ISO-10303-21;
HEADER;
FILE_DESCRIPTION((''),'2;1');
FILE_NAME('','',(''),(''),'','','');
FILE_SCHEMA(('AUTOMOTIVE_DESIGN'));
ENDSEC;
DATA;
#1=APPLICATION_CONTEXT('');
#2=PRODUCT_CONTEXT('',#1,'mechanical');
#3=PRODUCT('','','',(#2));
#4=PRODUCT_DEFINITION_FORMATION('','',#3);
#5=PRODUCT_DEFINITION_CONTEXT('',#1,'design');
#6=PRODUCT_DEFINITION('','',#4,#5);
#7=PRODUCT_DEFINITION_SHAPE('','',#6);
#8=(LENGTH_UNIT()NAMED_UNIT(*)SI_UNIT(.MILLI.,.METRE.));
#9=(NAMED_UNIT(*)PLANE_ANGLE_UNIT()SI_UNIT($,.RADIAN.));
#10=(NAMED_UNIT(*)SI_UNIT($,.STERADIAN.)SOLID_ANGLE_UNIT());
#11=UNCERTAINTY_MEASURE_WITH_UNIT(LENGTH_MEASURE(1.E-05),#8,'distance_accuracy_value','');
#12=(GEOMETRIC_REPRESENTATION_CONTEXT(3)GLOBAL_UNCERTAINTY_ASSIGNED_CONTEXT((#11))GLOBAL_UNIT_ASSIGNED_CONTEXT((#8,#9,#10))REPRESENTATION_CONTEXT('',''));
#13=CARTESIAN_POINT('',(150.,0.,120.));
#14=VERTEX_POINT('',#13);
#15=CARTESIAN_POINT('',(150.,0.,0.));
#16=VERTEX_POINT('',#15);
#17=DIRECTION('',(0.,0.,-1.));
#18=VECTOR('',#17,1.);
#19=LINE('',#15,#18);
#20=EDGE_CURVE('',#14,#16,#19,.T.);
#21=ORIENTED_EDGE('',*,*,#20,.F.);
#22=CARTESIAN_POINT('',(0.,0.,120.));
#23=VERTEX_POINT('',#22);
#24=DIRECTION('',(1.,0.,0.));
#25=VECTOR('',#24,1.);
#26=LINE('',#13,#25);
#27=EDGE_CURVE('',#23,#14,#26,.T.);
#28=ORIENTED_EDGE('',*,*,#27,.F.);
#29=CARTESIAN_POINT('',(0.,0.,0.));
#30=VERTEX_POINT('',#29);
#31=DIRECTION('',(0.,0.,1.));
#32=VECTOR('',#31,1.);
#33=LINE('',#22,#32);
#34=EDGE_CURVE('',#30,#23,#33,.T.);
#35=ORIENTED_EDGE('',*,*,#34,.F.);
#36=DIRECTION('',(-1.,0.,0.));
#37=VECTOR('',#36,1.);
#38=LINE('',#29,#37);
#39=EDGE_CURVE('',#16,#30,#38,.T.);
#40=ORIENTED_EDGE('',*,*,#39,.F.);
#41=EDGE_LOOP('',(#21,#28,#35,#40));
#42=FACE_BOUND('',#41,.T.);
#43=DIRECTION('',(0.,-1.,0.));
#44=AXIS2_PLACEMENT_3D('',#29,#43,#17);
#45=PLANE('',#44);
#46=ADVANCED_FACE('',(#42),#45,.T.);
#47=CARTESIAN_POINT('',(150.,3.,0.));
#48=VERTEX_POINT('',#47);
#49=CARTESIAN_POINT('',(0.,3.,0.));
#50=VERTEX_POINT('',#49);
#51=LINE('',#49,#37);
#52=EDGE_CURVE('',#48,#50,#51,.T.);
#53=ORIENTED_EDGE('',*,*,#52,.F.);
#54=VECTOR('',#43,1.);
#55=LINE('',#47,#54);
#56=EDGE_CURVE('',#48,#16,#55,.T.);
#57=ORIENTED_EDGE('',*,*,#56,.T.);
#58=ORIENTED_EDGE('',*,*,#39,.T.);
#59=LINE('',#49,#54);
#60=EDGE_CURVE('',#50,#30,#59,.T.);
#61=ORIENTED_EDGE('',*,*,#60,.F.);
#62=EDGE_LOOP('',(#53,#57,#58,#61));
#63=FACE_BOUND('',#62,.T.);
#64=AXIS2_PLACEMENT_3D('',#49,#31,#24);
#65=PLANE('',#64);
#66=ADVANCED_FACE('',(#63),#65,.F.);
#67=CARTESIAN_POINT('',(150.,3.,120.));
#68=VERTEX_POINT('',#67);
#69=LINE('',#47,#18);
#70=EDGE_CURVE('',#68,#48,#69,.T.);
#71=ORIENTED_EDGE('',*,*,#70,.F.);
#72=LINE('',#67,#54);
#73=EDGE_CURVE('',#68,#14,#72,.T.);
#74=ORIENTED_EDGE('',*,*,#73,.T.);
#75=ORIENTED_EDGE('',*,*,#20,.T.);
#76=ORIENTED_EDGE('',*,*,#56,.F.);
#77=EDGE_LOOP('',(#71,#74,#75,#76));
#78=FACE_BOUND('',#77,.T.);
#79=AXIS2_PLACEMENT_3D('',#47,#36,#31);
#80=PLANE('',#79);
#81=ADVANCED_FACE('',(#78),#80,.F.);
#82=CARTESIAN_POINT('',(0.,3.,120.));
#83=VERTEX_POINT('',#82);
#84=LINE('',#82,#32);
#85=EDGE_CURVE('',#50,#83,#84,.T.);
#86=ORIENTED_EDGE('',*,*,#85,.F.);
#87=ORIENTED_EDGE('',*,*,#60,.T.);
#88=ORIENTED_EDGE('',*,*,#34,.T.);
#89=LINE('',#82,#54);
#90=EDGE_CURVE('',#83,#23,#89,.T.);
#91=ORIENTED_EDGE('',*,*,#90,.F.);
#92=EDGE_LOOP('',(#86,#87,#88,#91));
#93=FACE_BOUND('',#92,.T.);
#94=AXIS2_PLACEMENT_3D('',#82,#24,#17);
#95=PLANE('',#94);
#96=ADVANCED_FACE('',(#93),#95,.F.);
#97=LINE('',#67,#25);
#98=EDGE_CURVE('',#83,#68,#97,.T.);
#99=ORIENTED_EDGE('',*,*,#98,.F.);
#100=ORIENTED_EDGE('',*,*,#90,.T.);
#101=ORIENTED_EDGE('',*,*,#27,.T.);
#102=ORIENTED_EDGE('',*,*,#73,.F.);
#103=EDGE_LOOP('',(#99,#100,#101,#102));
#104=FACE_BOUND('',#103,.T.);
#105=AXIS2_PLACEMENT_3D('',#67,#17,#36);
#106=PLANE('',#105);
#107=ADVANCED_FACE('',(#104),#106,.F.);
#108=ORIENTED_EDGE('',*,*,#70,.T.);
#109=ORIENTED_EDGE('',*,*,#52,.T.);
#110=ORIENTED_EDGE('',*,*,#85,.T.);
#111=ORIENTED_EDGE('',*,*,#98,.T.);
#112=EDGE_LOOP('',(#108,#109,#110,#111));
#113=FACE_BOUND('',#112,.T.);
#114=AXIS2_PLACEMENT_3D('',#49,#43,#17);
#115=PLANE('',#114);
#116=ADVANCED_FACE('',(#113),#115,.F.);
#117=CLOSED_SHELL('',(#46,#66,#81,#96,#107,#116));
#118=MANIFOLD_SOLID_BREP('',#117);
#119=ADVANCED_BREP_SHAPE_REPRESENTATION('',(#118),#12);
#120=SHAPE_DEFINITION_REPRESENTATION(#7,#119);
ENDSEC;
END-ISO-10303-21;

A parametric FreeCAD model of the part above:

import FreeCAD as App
import Part
import Sketcher
Q = App.Units.Quantity


def add_polygon(sketch, points):
    """Adds a closed chain of lines whose ends are joined by coincident constraints."""
    first, n = sketch.GeometryCount, len(points)
    for a, b in zip(points, points[1:] + points[:1]):
        sketch.addGeometry(Part.LineSegment(App.Vector(*a, 0), App.Vector(*b, 0)), False)
    for i in range(n):
        sketch.addConstraint(Sketcher.Constraint("Coincident", first + i, 2, first + (i + 1) % n, 1))

doc = App.newDocument("Part")
body = doc.addObject("PartDesign::Body", "Body")

sketch1 = body.newObject("Sketcher::SketchObject", "Sketch")
sketch1.AttachmentSupport = (doc.getObject("XZ_Plane"), [""])
sketch1.MapMode = "FlatFace"
add_polygon(sketch1, [(0, 0), (0, 120), (150, 120), (150, 0)])
sketch1.addConstraint([
    Sketcher.Constraint("Vertical", 0),
    Sketcher.Constraint("Horizontal", 1),
    Sketcher.Constraint("Vertical", 2),
    Sketcher.Constraint("Horizontal", 3),
    Sketcher.Constraint("Coincident", 3, 2, -1, 1),
    Sketcher.Constraint("DistanceX", 1, 1, 1, 2, Q("150 mm")),
    Sketcher.Constraint("DistanceY", 0, 1, 0, 2, Q("120 mm")),
])
pad1 = body.newObject("PartDesign::Pad", "Pad")
pad1.Profile = sketch1
pad1.Length = 3
pad1.Reversed = True

doc.recompute()
